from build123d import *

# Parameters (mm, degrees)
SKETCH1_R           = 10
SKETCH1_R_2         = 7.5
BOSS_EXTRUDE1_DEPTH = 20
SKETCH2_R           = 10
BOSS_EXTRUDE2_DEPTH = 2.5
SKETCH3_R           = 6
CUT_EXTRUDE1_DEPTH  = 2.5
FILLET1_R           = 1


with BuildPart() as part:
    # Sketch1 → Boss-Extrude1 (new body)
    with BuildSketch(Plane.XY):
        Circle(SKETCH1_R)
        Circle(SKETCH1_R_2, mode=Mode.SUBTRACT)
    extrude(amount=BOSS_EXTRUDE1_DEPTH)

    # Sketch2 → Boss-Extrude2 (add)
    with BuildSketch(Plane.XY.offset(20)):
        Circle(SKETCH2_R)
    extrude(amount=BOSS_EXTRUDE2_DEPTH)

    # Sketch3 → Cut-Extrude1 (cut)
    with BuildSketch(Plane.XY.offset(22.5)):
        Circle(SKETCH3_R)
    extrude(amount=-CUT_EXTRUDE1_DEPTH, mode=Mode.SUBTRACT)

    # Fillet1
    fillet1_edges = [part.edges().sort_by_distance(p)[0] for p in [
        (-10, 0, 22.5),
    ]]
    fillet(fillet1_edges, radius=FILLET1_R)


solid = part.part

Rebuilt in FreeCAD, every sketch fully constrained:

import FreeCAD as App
import Part
import Sketcher
Q = App.Units.Quantity


def edges_at(feature, points):
    """Names of the edges that pass closest to the given points."""
    edges = feature.Shape.Edges
    near = lambda p: min(range(len(edges)), key=lambda i: edges[i].distToShape(Part.Vertex(*p))[0])
    return sorted({f"Edge{near(p) + 1}" for p in points})

doc = App.newDocument("Part")
body = doc.addObject("PartDesign::Body", "Body")

# Sketch on XY plane
sketch1 = body.newObject("Sketcher::SketchObject", "Sketch")
sketch1.AttachmentSupport = (doc.getObject("XY_Plane"), [""])
sketch1.MapMode = "FlatFace"
sketch1.addGeometry([
    Part.Circle(App.Vector(0, 0, 0), App.Vector(0, 0, 1), 10),
    Part.Circle(App.Vector(0, 0, 0), App.Vector(0, 0, 1), 8),
], False)
sketch1.addConstraint([
    Sketcher.Constraint("Coincident", 0, 3, -1, 1),
    Sketcher.Constraint("Coincident", 1, 3, -1, 1),
    Sketcher.Constraint("Diameter", 0, Q("20 mm")),
    Sketcher.Constraint("Diameter", 1, Q("15 mm")),
])
pad1 = body.newObject("PartDesign::Pad", "Pad")
pad1.Profile = sketch1
pad1.Length = 20

# Sketch on XY plane
sketch2 = body.newObject("Sketcher::SketchObject", "Sketch001")
sketch2.AttachmentSupport = (doc.getObject("XY_Plane"), [""])
sketch2.MapMode = "FlatFace"
sketch2.AttachmentOffset = App.Placement(App.Vector(0, 0, 20), App.Rotation())
sketch2.addGeometry(Part.Circle(App.Vector(0, 0, 0), App.Vector(0, 0, 1), 10), False)
sketch2.addConstraint([
    Sketcher.Constraint("Coincident", 0, 3, -1, 1),
    Sketcher.Constraint("Diameter", 0, Q("20 mm")),
])
pad2 = body.newObject("PartDesign::Pad", "Pad001")
pad2.Profile = sketch2
pad2.Length = 2.5

# Sketch on XY plane
sketch3 = body.newObject("Sketcher::SketchObject", "Sketch002")
sketch3.AttachmentSupport = (doc.getObject("XY_Plane"), [""])
sketch3.MapMode = "FlatFace"
sketch3.AttachmentOffset = App.Placement(App.Vector(0, 0, 22.5), App.Rotation())
sketch3.addGeometry(Part.Circle(App.Vector(0, 0, 0), App.Vector(0, 0, 1), 6), False)
sketch3.addConstraint([
    Sketcher.Constraint("Coincident", 0, 3, -1, 1),
    Sketcher.Constraint("Diameter", 0, Q("12 mm")),
])
pocket1 = body.newObject("PartDesign::Pocket", "Pocket")
pocket1.Profile = sketch3
pocket1.Length = 2.5
doc.recompute()

fillet = body.newObject("PartDesign::Fillet", "Fillet")
fillet.Base = (pocket1, edges_at(pocket1, [(-10, 0, 22.5)]))
fillet.Radius = 1

doc.recompute()
